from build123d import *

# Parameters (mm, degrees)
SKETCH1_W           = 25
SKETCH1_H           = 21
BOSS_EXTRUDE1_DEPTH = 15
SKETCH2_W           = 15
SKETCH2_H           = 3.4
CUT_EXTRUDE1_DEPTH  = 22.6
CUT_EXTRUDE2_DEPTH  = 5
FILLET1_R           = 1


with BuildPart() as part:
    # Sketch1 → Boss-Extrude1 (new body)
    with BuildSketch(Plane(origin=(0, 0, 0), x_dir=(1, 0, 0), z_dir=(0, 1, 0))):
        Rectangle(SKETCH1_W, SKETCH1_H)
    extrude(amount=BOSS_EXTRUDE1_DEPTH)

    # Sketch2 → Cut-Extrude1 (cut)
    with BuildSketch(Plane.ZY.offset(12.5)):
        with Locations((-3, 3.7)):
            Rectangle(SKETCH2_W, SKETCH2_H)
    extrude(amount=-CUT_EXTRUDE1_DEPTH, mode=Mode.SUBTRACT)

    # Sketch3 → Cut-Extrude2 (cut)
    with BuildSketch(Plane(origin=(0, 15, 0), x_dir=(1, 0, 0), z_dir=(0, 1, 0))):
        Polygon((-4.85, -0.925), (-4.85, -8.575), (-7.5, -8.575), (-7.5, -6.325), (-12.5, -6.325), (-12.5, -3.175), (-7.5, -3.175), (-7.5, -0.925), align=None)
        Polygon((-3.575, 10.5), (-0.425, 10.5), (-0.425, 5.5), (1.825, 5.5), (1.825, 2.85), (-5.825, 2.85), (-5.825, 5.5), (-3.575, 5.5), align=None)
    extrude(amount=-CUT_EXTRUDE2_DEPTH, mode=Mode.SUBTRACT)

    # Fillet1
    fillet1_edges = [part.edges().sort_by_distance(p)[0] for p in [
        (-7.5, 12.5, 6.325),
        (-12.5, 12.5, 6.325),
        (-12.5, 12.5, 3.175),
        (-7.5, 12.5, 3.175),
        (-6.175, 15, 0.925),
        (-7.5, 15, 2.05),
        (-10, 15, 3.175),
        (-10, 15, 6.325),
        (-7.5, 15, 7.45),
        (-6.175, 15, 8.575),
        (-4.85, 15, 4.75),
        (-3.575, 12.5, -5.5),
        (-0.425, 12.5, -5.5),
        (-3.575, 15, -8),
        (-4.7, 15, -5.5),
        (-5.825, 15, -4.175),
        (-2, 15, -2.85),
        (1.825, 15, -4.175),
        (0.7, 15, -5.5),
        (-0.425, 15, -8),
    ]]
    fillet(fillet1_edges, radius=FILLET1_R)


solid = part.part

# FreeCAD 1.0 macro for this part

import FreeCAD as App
import Part
import Sketcher

V = App.Vector


def edges_at(feature, points):
    """Names of the edges that pass closest to the given points."""
    edges = feature.Shape.Edges
    near = lambda p: min(range(len(edges)), key=lambda i: edges[i].distToShape(Part.Vertex(*p))[0])
    return sorted({f"Edge{near(p) + 1}" for p in points})


def add_polygon(sketch, points):
    """Adds a closed chain of lines whose ends are joined by coincident constraints."""
    first, n = sketch.GeometryCount, len(points)
    for a, b in zip(points, points[1:] + points[:1]):
        sketch.addGeometry(Part.LineSegment(App.Vector(*a, 0), App.Vector(*b, 0)), False)
    for i in range(n):
        sketch.addConstraint(Sketcher.Constraint("Coincident", first + i, 2, first + (i + 1) % n, 1))

doc = App.newDocument("Part")
body = doc.addObject("PartDesign::Body", "Body")

sketch1 = doc.addObject("Sketcher::SketchObject", "Sketch")
body.addObject(sketch1)
sketch1.AttachmentSupport = (doc.XZ_Plane, [""])
sketch1.MapMode = "FlatFace"
add_polygon(sketch1, [(-12.5, -10.5), (-12.5, 10.5), (12.5, 10.5), (12.5, -10.5)])
sketch1.addConstraint([
    Sketcher.Constraint("Vertical", 0),
    Sketcher.Constraint("Horizontal", 1),
    Sketcher.Constraint("Vertical", 2),
    Sketcher.Constraint("Horizontal", 3),
    Sketcher.Constraint("Symmetric", 0, 2, 2, 2, -1, 1),
    Sketcher.Constraint("DistanceX", 1, 1, 1, 2, 25.0),
    Sketcher.Constraint("DistanceY", 0, 1, 0, 2, 21.0),
])
pad1 = doc.addObject("PartDesign::Pad", "Pad")
body.addObject(pad1)
pad1.Profile = sketch1
pad1.Length = 15
pad1.Reversed = True

sketch2 = doc.addObject("Sketcher::SketchObject", "Sketch001")
body.addObject(sketch2)
sketch2.AttachmentSupport = (doc.YZ_Plane, [""])
sketch2.MapMode = "FlatFace"
sketch2.AttachmentOffset = App.Placement(V(0, 0, -12.5), App.Rotation())
add_polygon(sketch2, [(5.4, -10.5), (2, -10.5), (2, 4.5), (5.4, 4.5)])
sketch2.addConstraint([
    Sketcher.Constraint("Horizontal", 0),
    Sketcher.Constraint("Vertical", 1),
    Sketcher.Constraint("Horizontal", 2),
    Sketcher.Constraint("Vertical", 3),
    Sketcher.Constraint("DistanceY", 1, 1, 1, 2, 15.0),
    Sketcher.Constraint("DistanceX", 0, 2, 0, 1, 3.4),
    Sketcher.Constraint("DistanceX", -1, 1, 0, 2, 2.0),
    Sketcher.Constraint("DistanceY", 0, 2, -1, 1, 10.5),
])
pocket1 = doc.addObject("PartDesign::Pocket", "Pocket")
body.addObject(pocket1)
pocket1.Profile = sketch2
pocket1.Length = 22.6
pocket1.Reversed = True

sketch3 = doc.addObject("Sketcher::SketchObject", "Sketch002")
body.addObject(sketch3)
sketch3.AttachmentSupport = (doc.XZ_Plane, [""])
sketch3.MapMode = "FlatFace"
sketch3.AttachmentOffset = App.Placement(V(0, 0, -15), App.Rotation())
add_polygon(sketch3, [(-4.85, 8.575), (-4.85, 0.925), (-7.5, 0.925), (-7.5, 3.175), (-12.5, 3.175), (-12.5, 6.325), (-7.5, 6.325), (-7.5, 8.575)])
add_polygon(sketch3, [(-0.425, -10.5), (-3.575, -10.5), (-3.575, -5.5), (-5.825, -5.5), (-5.825, -2.85), (1.825, -2.85), (1.825, -5.5), (-0.425, -5.5)])
sketch3.addConstraint([
    Sketcher.Constraint("Vertical", 0),
    Sketcher.Constraint("Horizontal", 1),
    Sketcher.Constraint("Vertical", 2),
    Sketcher.Constraint("Horizontal", 3),
    Sketcher.Constraint("Vertical", 4),
    Sketcher.Constraint("Horizontal", 5),
    Sketcher.Constraint("Vertical", 6),
    Sketcher.Constraint("Horizontal", 7),
    Sketcher.Constraint("Horizontal", 8),
    Sketcher.Constraint("Vertical", 9),
    Sketcher.Constraint("Horizontal", 10),
    Sketcher.Constraint("Vertical", 11),
    Sketcher.Constraint("Horizontal", 12),
    Sketcher.Constraint("Vertical", 13),
    Sketcher.Constraint("Horizontal", 14),
    Sketcher.Constraint("Vertical", 15),
    Sketcher.Constraint("Horizontal", 10, 2, 13, 2),
    Sketcher.Constraint("Vertical", 2, 2, 5, 2),
    Sketcher.Constraint("Equal", 10, 14),
    Sketcher.Constraint("Equal", 12, 0),
    Sketcher.Constraint("Equal", 14, 2),
    Sketcher.Constraint("Equal", 8, 4),
    Sketcher.Constraint("Equal", 5, 9),
    Sketcher.Constraint("Equal", 7, 11),
    Sketcher.Constraint("DistanceX", 3, 2, 3, 1, 5.0),
    Sketcher.Constraint("DistanceX", 1, 2, 1, 1, 2.65),
    Sketcher.Constraint("DistanceX", 8, 2, 8, 1, 3.15),
    Sketcher.Constraint("DistanceX", 10, 2, 10, 1, 2.25),
    Sketcher.Constraint("DistanceX", 1, 2, -1, 1, 7.5),
    Sketcher.Constraint("DistanceY", 8, 2, -1, 1, 10.5),
    Sketcher.Constraint("DistanceY", -1, 1, 0, 2, 0.925),
    Sketcher.Constraint("DistanceX", 8, 2, -1, 1, 3.575),
])
pocket2 = doc.addObject("PartDesign::Pocket", "Pocket001")
body.addObject(pocket2)
pocket2.Profile = sketch3
pocket2.Length = 5
pocket2.Reversed = True
doc.recompute()

fillet = doc.addObject("PartDesign::Fillet", "Fillet")
body.addObject(fillet)
fillet.Base = (pocket2, edges_at(pocket2, [
    (-7.5, 12.5, 6.325),
    (-12.5, 12.5, 6.325),
    (-12.5, 12.5, 3.175),
    (-7.5, 12.5, 3.175),
    (-6.175, 15, 0.925),
    (-7.5, 15, 2.05),
    (-10, 15, 3.175),
    (-10, 15, 6.325),
    (-7.5, 15, 7.45),
    (-6.175, 15, 8.575),
    (-4.85, 15, 4.75),
    (-3.575, 12.5, -5.5),
    (-0.425, 12.5, -5.5),
    (-3.575, 15, -8),
    (-4.7, 15, -5.5),
    (-5.825, 15, -4.175),
    (-2, 15, -2.85),
    (1.825, 15, -4.175),
    (0.7, 15, -5.5),
    (-0.425, 15, -8),
]))
fillet.Radius = 1

doc.recompute()
